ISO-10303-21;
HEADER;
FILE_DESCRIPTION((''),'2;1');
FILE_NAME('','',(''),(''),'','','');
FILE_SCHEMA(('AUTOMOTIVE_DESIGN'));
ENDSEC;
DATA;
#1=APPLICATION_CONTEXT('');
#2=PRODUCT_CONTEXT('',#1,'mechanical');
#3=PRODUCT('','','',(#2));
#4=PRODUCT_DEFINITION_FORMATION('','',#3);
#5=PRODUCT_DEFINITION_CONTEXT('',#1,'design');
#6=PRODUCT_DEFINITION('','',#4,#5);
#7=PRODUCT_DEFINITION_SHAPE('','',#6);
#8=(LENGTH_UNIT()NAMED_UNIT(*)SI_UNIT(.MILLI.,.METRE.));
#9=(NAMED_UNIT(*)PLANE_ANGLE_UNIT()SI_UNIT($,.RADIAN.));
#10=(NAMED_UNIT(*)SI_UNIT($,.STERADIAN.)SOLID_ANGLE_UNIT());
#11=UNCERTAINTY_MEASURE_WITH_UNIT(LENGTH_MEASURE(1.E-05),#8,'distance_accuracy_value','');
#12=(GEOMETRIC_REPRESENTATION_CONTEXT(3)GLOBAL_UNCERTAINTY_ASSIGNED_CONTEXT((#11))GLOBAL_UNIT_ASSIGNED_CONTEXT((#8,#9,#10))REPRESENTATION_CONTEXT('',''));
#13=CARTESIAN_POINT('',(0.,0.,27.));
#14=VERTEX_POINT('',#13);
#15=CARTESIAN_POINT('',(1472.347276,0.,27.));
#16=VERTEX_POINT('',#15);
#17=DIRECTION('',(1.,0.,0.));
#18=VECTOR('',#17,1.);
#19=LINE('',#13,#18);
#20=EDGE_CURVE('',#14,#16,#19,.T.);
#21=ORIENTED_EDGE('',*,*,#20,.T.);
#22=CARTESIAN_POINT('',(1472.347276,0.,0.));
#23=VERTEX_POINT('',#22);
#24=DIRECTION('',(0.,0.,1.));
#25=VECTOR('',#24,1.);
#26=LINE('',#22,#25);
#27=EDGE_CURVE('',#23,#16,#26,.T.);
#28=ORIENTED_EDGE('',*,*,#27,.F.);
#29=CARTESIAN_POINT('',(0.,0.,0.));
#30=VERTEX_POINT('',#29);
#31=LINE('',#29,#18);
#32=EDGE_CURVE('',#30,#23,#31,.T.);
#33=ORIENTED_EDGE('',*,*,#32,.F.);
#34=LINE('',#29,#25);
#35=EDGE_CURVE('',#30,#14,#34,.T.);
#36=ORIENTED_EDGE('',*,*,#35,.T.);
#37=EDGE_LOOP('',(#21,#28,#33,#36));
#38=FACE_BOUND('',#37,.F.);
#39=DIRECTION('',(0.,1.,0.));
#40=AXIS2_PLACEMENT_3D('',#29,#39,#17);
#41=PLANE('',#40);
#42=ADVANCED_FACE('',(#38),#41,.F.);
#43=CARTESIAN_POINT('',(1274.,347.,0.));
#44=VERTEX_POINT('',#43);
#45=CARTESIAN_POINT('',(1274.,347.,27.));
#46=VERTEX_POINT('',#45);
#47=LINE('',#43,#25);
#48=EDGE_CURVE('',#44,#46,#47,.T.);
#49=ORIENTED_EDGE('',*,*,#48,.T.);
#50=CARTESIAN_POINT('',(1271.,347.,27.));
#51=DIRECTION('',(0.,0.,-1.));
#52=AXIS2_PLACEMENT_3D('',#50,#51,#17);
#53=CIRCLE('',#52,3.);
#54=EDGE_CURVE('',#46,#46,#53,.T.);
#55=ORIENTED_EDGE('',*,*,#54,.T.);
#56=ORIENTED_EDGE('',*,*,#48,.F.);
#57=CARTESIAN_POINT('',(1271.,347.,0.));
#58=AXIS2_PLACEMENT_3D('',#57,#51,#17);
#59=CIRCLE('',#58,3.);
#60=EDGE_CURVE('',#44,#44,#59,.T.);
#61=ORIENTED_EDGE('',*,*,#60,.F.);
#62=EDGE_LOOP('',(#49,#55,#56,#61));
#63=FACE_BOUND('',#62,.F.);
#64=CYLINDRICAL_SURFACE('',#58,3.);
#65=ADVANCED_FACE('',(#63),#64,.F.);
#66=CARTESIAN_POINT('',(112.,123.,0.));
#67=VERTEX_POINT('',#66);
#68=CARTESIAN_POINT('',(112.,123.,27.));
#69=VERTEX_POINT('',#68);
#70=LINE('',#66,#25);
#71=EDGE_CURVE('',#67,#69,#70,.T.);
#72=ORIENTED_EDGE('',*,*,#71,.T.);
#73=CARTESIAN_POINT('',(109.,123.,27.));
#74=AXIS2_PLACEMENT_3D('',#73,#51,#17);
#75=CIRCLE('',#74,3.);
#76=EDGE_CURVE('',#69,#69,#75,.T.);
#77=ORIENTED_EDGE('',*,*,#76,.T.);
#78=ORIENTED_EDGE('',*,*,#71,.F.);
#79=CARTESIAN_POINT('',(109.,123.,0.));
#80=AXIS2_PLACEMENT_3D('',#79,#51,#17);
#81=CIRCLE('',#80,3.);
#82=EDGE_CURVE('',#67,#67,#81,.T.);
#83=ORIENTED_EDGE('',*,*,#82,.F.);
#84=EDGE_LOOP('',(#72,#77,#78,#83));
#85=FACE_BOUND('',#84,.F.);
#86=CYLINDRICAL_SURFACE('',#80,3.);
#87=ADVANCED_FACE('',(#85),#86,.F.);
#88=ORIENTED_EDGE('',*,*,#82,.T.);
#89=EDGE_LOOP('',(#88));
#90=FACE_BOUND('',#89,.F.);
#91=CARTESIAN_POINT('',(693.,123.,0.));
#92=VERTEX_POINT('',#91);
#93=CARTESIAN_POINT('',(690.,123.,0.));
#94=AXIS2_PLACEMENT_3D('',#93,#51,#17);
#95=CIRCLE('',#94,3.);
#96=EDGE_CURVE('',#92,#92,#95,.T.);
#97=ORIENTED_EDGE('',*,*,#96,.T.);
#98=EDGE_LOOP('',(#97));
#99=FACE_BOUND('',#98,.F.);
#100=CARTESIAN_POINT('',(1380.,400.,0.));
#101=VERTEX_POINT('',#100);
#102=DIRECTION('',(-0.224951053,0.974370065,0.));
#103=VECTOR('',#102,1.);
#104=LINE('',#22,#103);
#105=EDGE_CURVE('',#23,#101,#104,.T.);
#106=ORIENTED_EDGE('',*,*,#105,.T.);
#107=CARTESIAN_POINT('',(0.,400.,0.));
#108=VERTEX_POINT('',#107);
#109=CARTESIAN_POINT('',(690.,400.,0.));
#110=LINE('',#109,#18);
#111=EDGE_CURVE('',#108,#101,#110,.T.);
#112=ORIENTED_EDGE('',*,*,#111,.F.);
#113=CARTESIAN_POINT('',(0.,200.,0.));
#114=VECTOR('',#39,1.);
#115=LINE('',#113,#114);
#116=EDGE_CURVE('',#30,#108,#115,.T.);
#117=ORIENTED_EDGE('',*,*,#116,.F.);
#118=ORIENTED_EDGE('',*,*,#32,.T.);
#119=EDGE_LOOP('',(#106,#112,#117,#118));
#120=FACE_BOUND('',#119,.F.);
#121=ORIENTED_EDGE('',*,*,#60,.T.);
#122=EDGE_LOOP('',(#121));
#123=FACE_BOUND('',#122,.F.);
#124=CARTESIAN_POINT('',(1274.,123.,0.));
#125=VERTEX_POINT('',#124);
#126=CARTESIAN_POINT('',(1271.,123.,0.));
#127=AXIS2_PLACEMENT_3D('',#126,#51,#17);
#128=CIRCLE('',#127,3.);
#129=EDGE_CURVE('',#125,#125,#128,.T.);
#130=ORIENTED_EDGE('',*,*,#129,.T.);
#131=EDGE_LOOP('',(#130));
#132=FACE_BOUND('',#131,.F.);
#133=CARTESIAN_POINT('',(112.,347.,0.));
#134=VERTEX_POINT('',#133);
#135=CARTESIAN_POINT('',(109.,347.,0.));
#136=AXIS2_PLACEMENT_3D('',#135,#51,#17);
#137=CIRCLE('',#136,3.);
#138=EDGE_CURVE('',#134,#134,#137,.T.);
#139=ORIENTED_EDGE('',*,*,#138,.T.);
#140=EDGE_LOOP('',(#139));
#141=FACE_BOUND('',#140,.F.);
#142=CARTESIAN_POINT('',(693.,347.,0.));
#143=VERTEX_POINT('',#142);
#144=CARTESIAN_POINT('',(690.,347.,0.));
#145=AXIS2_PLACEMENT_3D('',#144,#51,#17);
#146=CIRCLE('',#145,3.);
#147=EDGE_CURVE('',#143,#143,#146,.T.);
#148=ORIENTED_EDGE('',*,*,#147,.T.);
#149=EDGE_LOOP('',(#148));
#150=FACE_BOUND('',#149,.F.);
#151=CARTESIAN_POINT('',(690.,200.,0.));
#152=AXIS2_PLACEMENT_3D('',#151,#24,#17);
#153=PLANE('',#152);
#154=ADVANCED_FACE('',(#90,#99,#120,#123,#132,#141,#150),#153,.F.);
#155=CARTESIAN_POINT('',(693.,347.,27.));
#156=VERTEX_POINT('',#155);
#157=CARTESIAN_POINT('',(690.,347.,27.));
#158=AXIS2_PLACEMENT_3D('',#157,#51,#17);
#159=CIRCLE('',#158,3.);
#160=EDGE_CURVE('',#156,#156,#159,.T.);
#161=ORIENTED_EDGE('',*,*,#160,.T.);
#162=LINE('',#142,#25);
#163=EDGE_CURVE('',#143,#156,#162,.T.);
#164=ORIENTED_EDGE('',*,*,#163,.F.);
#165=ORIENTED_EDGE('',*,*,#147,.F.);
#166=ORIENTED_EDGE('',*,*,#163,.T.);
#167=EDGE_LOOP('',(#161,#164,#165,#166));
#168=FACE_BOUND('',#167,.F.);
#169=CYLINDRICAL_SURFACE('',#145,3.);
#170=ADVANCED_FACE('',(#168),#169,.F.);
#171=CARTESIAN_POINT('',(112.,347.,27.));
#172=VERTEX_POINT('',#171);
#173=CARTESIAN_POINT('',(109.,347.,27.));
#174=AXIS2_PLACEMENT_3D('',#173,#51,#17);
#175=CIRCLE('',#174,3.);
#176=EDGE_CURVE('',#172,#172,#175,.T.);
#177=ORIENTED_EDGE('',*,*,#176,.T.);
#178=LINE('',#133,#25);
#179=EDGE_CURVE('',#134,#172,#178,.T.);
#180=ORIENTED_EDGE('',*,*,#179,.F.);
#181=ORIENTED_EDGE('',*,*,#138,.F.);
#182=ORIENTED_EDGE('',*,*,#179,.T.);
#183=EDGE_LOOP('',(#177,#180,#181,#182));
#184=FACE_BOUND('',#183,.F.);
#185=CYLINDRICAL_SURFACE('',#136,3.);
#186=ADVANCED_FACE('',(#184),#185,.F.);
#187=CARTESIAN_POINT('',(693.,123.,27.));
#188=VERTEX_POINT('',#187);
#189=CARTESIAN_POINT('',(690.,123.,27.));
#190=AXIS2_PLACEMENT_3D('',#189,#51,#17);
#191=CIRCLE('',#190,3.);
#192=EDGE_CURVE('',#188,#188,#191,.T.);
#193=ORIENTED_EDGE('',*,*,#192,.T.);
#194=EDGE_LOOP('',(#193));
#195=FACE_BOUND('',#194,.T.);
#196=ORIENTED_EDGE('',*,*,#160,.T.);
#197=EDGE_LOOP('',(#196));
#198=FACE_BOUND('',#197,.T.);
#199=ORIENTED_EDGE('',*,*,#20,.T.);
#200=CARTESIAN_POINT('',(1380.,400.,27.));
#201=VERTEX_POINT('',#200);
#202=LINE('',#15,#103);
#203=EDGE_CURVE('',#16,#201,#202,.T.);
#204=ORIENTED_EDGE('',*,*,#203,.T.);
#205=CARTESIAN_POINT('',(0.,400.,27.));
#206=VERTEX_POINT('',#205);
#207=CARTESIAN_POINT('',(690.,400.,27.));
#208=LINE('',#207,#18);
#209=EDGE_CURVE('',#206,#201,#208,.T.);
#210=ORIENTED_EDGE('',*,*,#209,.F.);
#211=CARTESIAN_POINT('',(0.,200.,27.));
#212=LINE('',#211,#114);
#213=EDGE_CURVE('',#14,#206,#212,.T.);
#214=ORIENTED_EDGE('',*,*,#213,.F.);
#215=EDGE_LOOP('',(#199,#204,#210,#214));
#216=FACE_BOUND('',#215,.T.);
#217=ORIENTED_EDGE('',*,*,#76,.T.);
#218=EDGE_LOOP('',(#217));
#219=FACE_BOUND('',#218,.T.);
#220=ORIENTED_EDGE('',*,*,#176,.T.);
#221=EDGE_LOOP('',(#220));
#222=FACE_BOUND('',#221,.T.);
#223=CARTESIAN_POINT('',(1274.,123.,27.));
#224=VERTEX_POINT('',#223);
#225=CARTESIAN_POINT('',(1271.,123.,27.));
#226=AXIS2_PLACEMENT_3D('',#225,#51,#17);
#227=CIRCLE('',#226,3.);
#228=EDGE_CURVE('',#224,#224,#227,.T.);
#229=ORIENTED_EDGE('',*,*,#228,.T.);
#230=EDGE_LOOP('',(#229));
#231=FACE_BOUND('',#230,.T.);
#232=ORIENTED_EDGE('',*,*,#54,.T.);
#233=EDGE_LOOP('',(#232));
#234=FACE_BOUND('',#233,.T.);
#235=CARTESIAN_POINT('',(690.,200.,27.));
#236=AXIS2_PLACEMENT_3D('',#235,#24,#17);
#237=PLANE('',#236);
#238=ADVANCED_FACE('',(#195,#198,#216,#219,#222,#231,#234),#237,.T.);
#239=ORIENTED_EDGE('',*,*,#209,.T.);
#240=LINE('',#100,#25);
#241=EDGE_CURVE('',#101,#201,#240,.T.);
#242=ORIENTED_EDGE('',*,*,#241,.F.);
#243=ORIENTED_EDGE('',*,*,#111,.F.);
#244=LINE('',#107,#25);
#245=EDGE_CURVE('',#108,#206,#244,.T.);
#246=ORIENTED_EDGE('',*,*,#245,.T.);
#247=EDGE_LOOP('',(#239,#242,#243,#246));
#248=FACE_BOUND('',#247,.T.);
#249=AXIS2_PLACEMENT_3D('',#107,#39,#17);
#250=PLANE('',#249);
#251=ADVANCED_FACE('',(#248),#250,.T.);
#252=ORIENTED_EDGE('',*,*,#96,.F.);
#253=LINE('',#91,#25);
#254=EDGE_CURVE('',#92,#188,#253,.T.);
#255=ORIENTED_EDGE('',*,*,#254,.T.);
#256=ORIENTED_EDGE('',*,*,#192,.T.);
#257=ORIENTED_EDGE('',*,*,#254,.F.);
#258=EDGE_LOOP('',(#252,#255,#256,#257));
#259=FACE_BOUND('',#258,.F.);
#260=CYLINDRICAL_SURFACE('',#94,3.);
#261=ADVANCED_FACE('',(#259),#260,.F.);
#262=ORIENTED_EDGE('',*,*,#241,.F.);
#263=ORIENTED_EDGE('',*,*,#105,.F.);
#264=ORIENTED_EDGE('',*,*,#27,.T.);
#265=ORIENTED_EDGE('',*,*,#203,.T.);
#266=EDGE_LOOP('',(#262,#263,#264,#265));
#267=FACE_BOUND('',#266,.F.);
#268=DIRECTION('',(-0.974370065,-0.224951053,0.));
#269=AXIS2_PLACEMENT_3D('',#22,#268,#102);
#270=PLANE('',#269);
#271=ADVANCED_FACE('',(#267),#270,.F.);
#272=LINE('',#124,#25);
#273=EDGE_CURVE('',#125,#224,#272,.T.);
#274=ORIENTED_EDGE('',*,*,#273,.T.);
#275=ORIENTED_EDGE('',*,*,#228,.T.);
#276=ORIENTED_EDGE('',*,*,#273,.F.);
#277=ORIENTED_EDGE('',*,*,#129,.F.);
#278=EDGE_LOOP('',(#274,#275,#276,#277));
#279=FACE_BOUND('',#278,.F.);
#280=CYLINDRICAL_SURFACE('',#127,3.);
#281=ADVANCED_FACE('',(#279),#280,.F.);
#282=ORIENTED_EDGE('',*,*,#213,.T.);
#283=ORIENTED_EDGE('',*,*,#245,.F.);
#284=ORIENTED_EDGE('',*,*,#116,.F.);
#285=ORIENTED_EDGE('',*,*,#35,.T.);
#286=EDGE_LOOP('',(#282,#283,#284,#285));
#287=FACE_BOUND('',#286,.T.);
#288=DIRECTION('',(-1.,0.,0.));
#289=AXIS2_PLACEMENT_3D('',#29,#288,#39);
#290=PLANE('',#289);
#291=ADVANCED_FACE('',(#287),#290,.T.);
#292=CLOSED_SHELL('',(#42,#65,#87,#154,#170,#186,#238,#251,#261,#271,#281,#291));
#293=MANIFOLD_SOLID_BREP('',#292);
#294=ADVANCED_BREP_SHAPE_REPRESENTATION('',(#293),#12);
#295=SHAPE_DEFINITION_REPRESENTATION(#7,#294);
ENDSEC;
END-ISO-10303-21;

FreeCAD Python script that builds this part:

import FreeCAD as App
import Part
import Sketcher
Q = App.Units.Quantity

doc = App.newDocument("Part")
body = doc.addObject("PartDesign::Body", "Body")

# Sketch on XY plane
sketch1 = doc.addObject("Sketcher::SketchObject", "Sketch")
body.addObject(sketch1)
sketch1.AttachmentSupport = (doc.XY_Plane, [""])
sketch1.MapMode = "FlatFace"
sketch1.addGeometry(Part.LineSegment(App.Vector(0, 400, 0), App.Vector(0, 0, 0)), False)
sketch1.addGeometry(Part.LineSegment(App.Vector(0, 0, 0), App.Vector(1472, 0, 0)), False)
sketch1.addGeometry(Part.LineSegment(App.Vector(1472, 0, 0), App.Vector(1380, 400, 0)), False)
sketch1.addGeometry(Part.LineSegment(App.Vector(1380, 400, 0), App.Vector(0, 400, 0)), False)
sketch1.addConstraint(Sketcher.Constraint("Coincident", 0, 2, 1, 1))
sketch1.addConstraint(Sketcher.Constraint("Coincident", 1, 2, 2, 1))
sketch1.addConstraint(Sketcher.Constraint("Coincident", 2, 2, 3, 1))
sketch1.addConstraint(Sketcher.Constraint("Coincident", 3, 2, 0, 1))
sketch1.addConstraint(Sketcher.Constraint("Vertical", 0))
sketch1.addConstraint(Sketcher.Constraint("Horizontal", 1))
sketch1.addConstraint(Sketcher.Constraint("Horizontal", 3))
sketch1.addConstraint(Sketcher.Constraint("Coincident", 0, 2, -1, 1))
sketch1.addConstraint(Sketcher.Constraint("DistanceX", 3, 2, 3, 1, Q("1380 mm")))
sketch1.addConstraint(Sketcher.Constraint("DistanceY", 0, 2, 0, 1, Q("400 mm")))
sketch1.addConstraint(Sketcher.Constraint("Angle", 2, Q("103 deg")))
pad1 = doc.addObject("PartDesign::Pad", "Pad")
body.addObject(pad1)
pad1.Profile = sketch1
pad1.Length = 27

# Sketch on XY plane
sketch2 = doc.addObject("Sketcher::SketchObject", "Sketch001")
body.addObject(sketch2)
sketch2.AttachmentSupport = (doc.XY_Plane, [""])
sketch2.MapMode = "FlatFace"
sketch2.addGeometry(Part.Circle(App.Vector(1271, 123, 0), App.Vector(0, 0, 1), 3), False)
sketch2.addGeometry(Part.Circle(App.Vector(1271, 347, 0), App.Vector(0, 0, 1), 3), False)
sketch2.addGeometry(Part.Circle(App.Vector(109, 123, 0), App.Vector(0, 0, 1), 3), False)
sketch2.addGeometry(Part.Circle(App.Vector(109, 347, 0), App.Vector(0, 0, 1), 3), False)
sketch2.addGeometry(Part.Circle(App.Vector(690, 347, 0), App.Vector(0, 0, 1), 3), False)
sketch2.addGeometry(Part.Circle(App.Vector(690, 123, 0), App.Vector(0, 0, 1), 3), False)
sketch2.addConstraint(Sketcher.Constraint("Equal", 0, 1))
sketch2.addConstraint(Sketcher.Constraint("Equal", 1, 2))
sketch2.addConstraint(Sketcher.Constraint("Equal", 2, 3))
sketch2.addConstraint(Sketcher.Constraint("Equal", 3, 4))
sketch2.addConstraint(Sketcher.Constraint("Equal", 4, 5))
sketch2.addConstraint(Sketcher.Constraint("Horizontal", 0, 3, 2, 3))
sketch2.addConstraint(Sketcher.Constraint("Horizontal", 1, 3, 3, 3))
sketch2.addConstraint(Sketcher.Constraint("Horizontal", 3, 3, 4, 3))
sketch2.addConstraint(Sketcher.Constraint("Horizontal", 2, 3, 5, 3))
sketch2.addConstraint(Sketcher.Constraint("Vertical", 0, 3, 1, 3))
sketch2.addConstraint(Sketcher.Constraint("Vertical", 2, 3, 3, 3))
sketch2.addConstraint(Sketcher.Constraint("Vertical", 4, 3, 5, 3))
sketch2.addConstraint(Sketcher.Constraint("Diameter", 0, Q("6 mm")))
sketch2.addConstraint(Sketcher.Constraint("DistanceX", -1, 1, 0, 3, Q("1271 mm")))
sketch2.addConstraint(Sketcher.Constraint("DistanceY", -1, 1, 0, 3, Q("123 mm")))
sketch2.addConstraint(Sketcher.Constraint("DistanceY", -1, 1, 1, 3, Q("347 mm")))
sketch2.addConstraint(Sketcher.Constraint("DistanceX", -1, 1, 2, 3, Q("109 mm")))
sketch2.addConstraint(Sketcher.Constraint("DistanceX", -1, 1, 4, 3, Q("690 mm")))
pocket1 = doc.addObject("PartDesign::Pocket", "Pocket")
body.addObject(pocket1)
pocket1.Profile = sketch2
pocket1.Type = "ThroughAll"
pocket1.Reversed = True

doc.recompute()
